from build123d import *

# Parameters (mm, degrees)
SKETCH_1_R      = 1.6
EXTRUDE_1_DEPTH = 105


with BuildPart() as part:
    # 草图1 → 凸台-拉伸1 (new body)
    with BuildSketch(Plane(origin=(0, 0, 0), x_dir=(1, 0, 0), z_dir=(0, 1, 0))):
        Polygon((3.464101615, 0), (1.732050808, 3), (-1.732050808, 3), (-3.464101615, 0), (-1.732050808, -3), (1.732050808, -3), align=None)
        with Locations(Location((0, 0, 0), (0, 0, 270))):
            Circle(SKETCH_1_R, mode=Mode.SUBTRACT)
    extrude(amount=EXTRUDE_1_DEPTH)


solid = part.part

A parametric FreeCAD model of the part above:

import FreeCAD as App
import Part
import Sketcher
from FreeCAD import Vector
Q = App.Units.Quantity

doc = App.newDocument("Part")
body = doc.addObject("PartDesign::Body", "Body")

# Sketch on XZ plane
sketch1 = body.newObject("Sketcher::SketchObject", "Sketch")
sketch1.AttachmentSupport = (doc.getObject("XZ_Plane"), [""])
sketch1.MapMode = "FlatFace"
sketch1.addGeometry(Part.LineSegment(Vector(3.5, 0, 0), Vector(1.7, -3, 0)), False)
sketch1.addGeometry(Part.LineSegment(Vector(1.7, -3, 0), Vector(-1.7, -3, 0)), False)
sketch1.addGeometry(Part.LineSegment(Vector(-1.7, -3, 0), Vector(-3.5, 0, 0)), False)
sketch1.addGeometry(Part.LineSegment(Vector(-3.5, 0, 0), Vector(-1.7, 3, 0)), False)
sketch1.addGeometry(Part.LineSegment(Vector(-1.7, 3, 0), Vector(1.7, 3, 0)), False)
sketch1.addGeometry(Part.LineSegment(Vector(1.7, 3, 0), Vector(3.5, 0, 0)), False)
sketch1.addGeometry(Part.Circle(Vector(0, 0, 0), Vector(0, 0, 1), 1.6), False)
sketch1.addConstraint(Sketcher.Constraint("Coincident", 0, 2, 1, 1))
sketch1.addConstraint(Sketcher.Constraint("Coincident", 1, 2, 2, 1))
sketch1.addConstraint(Sketcher.Constraint("Coincident", 2, 2, 3, 1))
sketch1.addConstraint(Sketcher.Constraint("Coincident", 3, 2, 4, 1))
sketch1.addConstraint(Sketcher.Constraint("Coincident", 4, 2, 5, 1))
sketch1.addConstraint(Sketcher.Constraint("Coincident", 5, 2, 0, 1))
sketch1.addConstraint(Sketcher.Constraint("Horizontal", 1))
sketch1.addConstraint(Sketcher.Constraint("Horizontal", 4))
sketch1.addConstraint(Sketcher.Constraint("Coincident", 6, 3, -1, 1))
sketch1.addConstraint(Sketcher.Constraint("Symmetric", 0, 2, 3, 2, -1, 1))
sketch1.addConstraint(Sketcher.Constraint("Symmetric", 2, 2, 5, 2, -1, 1))
sketch1.addConstraint(Sketcher.Constraint("PointOnObject", 2, 2, -1))
sketch1.addConstraint(Sketcher.Constraint("Parallel", 2, 5))
sketch1.addConstraint(Sketcher.Constraint("Vertical", 1, 2, 3, 2))
sketch1.addConstraint(Sketcher.Constraint("Diameter", 6, Q("3.2 mm")))
sketch1.addConstraint(Sketcher.Constraint("Angle", 0, Q("-120 deg")))
sketch1.addConstraint(Sketcher.Constraint("DistanceY", 0, 2, -1, 1, Q("3 mm")))
sketch1.addConstraint(Sketcher.Constraint("DistanceX", 1, 2, 1, 1, Q("3.464102 mm")))
pad1 = body.newObject("PartDesign::Pad", "Pad")
pad1.Profile = sketch1
pad1.Length = 105
pad1.Reversed = True

doc.recompute()
